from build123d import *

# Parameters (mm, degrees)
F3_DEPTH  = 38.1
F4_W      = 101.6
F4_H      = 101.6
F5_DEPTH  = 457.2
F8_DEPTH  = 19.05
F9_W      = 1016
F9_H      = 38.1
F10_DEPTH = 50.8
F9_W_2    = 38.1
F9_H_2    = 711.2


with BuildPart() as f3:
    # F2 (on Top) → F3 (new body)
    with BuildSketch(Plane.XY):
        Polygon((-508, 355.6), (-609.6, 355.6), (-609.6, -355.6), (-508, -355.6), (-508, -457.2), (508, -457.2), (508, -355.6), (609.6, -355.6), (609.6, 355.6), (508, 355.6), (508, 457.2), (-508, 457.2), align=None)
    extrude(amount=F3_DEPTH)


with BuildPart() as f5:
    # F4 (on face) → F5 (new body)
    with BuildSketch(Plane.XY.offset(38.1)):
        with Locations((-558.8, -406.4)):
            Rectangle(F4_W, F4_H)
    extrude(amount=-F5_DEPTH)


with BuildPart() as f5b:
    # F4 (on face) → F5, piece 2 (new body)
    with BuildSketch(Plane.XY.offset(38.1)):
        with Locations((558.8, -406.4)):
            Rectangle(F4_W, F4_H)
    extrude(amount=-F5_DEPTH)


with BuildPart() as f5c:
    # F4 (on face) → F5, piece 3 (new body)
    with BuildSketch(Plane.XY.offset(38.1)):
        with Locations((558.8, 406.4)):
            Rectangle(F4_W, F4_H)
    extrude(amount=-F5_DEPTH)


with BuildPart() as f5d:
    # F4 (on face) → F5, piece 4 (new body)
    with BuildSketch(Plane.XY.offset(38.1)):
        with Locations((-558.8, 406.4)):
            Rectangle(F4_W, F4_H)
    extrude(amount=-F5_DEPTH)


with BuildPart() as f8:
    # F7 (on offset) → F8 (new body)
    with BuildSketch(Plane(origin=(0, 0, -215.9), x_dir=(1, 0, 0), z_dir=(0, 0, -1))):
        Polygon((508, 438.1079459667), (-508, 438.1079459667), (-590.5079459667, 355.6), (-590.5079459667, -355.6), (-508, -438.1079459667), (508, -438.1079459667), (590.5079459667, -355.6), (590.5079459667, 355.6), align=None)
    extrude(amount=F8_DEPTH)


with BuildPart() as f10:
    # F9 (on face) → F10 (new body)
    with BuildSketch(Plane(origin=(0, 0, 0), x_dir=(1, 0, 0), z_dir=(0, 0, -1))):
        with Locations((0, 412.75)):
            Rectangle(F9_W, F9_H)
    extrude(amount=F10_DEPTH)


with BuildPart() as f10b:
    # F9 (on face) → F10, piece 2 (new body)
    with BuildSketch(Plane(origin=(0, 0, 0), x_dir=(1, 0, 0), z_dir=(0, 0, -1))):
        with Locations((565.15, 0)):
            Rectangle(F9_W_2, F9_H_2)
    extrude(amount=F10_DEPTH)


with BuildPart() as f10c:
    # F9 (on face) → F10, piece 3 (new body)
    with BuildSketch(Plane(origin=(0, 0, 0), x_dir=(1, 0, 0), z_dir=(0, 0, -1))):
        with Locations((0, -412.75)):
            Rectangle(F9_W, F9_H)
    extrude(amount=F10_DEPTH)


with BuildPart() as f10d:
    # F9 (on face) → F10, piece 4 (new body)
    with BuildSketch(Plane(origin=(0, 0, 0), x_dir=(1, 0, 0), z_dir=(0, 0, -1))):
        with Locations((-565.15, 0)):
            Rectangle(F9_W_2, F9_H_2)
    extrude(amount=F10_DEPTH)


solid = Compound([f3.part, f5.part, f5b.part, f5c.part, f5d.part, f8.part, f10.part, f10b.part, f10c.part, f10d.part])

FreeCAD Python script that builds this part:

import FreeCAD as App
import Part
import Sketcher
Q = App.Units.Quantity

doc = App.newDocument("Part")
body = doc.addObject("PartDesign::Body", "Body")

sketch1 = body.newObject("Sketcher::SketchObject", "Sketch")
sketch1.AttachmentSupport = (doc.getObject("XY_Plane"), [""])
sketch1.MapMode = "FlatFace"
sketch1.addGeometry(Part.LineSegment(App.Vector(-508, 355.6, 0), App.Vector(-609.6, 355.6, 0)), False)
sketch1.addGeometry(Part.LineSegment(App.Vector(-609.6, 355.6, 0), App.Vector(-609.6, -355.6, 0)), False)
sketch1.addGeometry(Part.LineSegment(App.Vector(-609.6, -355.6, 0), App.Vector(-508, -355.6, 0)), False)
sketch1.addGeometry(Part.LineSegment(App.Vector(-508, -355.6, 0), App.Vector(-508, -457.2, 0)), False)
sketch1.addGeometry(Part.LineSegment(App.Vector(-508, -457.2, 0), App.Vector(508, -457.2, 0)), False)
sketch1.addGeometry(Part.LineSegment(App.Vector(508, -457.2, 0), App.Vector(508, -355.6, 0)), False)
sketch1.addGeometry(Part.LineSegment(App.Vector(508, -355.6, 0), App.Vector(609.6, -355.6, 0)), False)
sketch1.addGeometry(Part.LineSegment(App.Vector(609.6, -355.6, 0), App.Vector(609.6, 355.6, 0)), False)
sketch1.addGeometry(Part.LineSegment(App.Vector(609.6, 355.6, 0), App.Vector(508, 355.6, 0)), False)
sketch1.addGeometry(Part.LineSegment(App.Vector(508, 355.6, 0), App.Vector(508, 457.2, 0)), False)
sketch1.addGeometry(Part.LineSegment(App.Vector(508, 457.2, 0), App.Vector(-508, 457.2, 0)), False)
sketch1.addGeometry(Part.LineSegment(App.Vector(-508, 457.2, 0), App.Vector(-508, 355.6, 0)), False)
sketch1.addConstraint(Sketcher.Constraint("Coincident", 0, 2, 1, 1))
sketch1.addConstraint(Sketcher.Constraint("Coincident", 1, 2, 2, 1))
sketch1.addConstraint(Sketcher.Constraint("Coincident", 2, 2, 3, 1))
sketch1.addConstraint(Sketcher.Constraint("Coincident", 3, 2, 4, 1))
sketch1.addConstraint(Sketcher.Constraint("Coincident", 4, 2, 5, 1))
sketch1.addConstraint(Sketcher.Constraint("Coincident", 5, 2, 6, 1))
sketch1.addConstraint(Sketcher.Constraint("Coincident", 6, 2, 7, 1))
sketch1.addConstraint(Sketcher.Constraint("Coincident", 7, 2, 8, 1))
sketch1.addConstraint(Sketcher.Constraint("Coincident", 8, 2, 9, 1))
sketch1.addConstraint(Sketcher.Constraint("Coincident", 9, 2, 10, 1))
sketch1.addConstraint(Sketcher.Constraint("Coincident", 10, 2, 11, 1))
sketch1.addConstraint(Sketcher.Constraint("Coincident", 11, 2, 0, 1))
sketch1.addConstraint(Sketcher.Constraint("Horizontal", 0))
sketch1.addConstraint(Sketcher.Constraint("Vertical", 1))
sketch1.addConstraint(Sketcher.Constraint("Horizontal", 2))
sketch1.addConstraint(Sketcher.Constraint("Vertical", 3))
sketch1.addConstraint(Sketcher.Constraint("Horizontal", 4))
sketch1.addConstraint(Sketcher.Constraint("Vertical", 5))
sketch1.addConstraint(Sketcher.Constraint("Horizontal", 6))
sketch1.addConstraint(Sketcher.Constraint("Vertical", 7))
sketch1.addConstraint(Sketcher.Constraint("Horizontal", 8))
sketch1.addConstraint(Sketcher.Constraint("Vertical", 9))
sketch1.addConstraint(Sketcher.Constraint("Horizontal", 10))
sketch1.addConstraint(Sketcher.Constraint("Vertical", 11))
sketch1.addConstraint(Sketcher.Constraint("Symmetric", 0, 2, 6, 2, -1, 1))
sketch1.addConstraint(Sketcher.Constraint("Symmetric", 2, 2, 8, 2, -1, 1))
sketch1.addConstraint(Sketcher.Constraint("Symmetric", 4, 2, 10, 2, -1, 1))
sketch1.addConstraint(Sketcher.Constraint("Symmetric", 2, 2, 5, 2, -2))
sketch1.addConstraint(Sketcher.Constraint("Equal", 8, 3))
sketch1.addConstraint(Sketcher.Constraint("DistanceX", 0, 2, 0, 1, Q("4 in")))
sketch1.addConstraint(Sketcher.Constraint("DistanceX", 4, 1, 4, 2, Q("40 in")))
sketch1.addConstraint(Sketcher.Constraint("DistanceY", 1, 2, 1, 1, Q("28 in")))
pad1 = body.newObject("PartDesign::Pad", "Pad")
pad1.Profile = sketch1
pad1.Length = Q("1.5 in")
body2 = doc.addObject("PartDesign::Body", "Body001")

sketch2 = body2.newObject("Sketcher::SketchObject", "Sketch001")
sketch2.AttachmentSupport = (doc.getObject("XY_Plane001"), [""])
sketch2.MapMode = "FlatFace"
sketch2.AttachmentOffset = App.Placement(App.Vector(0, 0, 1.5 * 25.4), App.Rotation())
sketch2.addGeometry(Part.LineSegment(App.Vector(-609.6, -355.6, 0), App.Vector(-609.6, -457.2, 0)), False)
sketch2.addGeometry(Part.LineSegment(App.Vector(-609.6, -457.2, 0), App.Vector(-508, -457.2, 0)), False)
sketch2.addGeometry(Part.LineSegment(App.Vector(-508, -457.2, 0), App.Vector(-508, -355.6, 0)), False)
sketch2.addGeometry(Part.LineSegment(App.Vector(-508, -355.6, 0), App.Vector(-609.6, -355.6, 0)), False)
sketch2.addConstraint(Sketcher.Constraint("Coincident", 0, 2, 1, 1))
sketch2.addConstraint(Sketcher.Constraint("Coincident", 1, 2, 2, 1))
sketch2.addConstraint(Sketcher.Constraint("Coincident", 2, 2, 3, 1))
sketch2.addConstraint(Sketcher.Constraint("Coincident", 3, 2, 0, 1))
sketch2.addConstraint(Sketcher.Constraint("Vertical", 0))
sketch2.addConstraint(Sketcher.Constraint("Horizontal", 1))
sketch2.addConstraint(Sketcher.Constraint("Vertical", 2))
sketch2.addConstraint(Sketcher.Constraint("Horizontal", 3))
sketch2.addConstraint(Sketcher.Constraint("Equal", 3, 0))
sketch2.addConstraint(Sketcher.Constraint("DistanceX", 1, 1, 1, 2, Q("4 in")))
sketch2.addConstraint(Sketcher.Constraint("DistanceX", 0, 2, -1, 1, Q("24 in")))
sketch2.addConstraint(Sketcher.Constraint("DistanceY", 0, 2, -1, 1, Q("18 in")))
pad2 = body2.newObject("PartDesign::Pad", "Pad001")
pad2.Profile = sketch2
pad2.Length = Q("18 in")
pad2.Reversed = True
body3 = doc.addObject("PartDesign::Body", "Body002")

sketch3 = body3.newObject("Sketcher::SketchObject", "Sketch002")
sketch3.AttachmentSupport = (doc.getObject("XY_Plane002"), [""])
sketch3.MapMode = "FlatFace"
sketch3.AttachmentOffset = App.Placement(App.Vector(0, 0, 1.5 * 25.4), App.Rotation())
sketch3.addGeometry(Part.LineSegment(App.Vector(508, -355.6, 0), App.Vector(508, -457.2, 0)), False)
sketch3.addGeometry(Part.LineSegment(App.Vector(508, -457.2, 0), App.Vector(609.6, -457.2, 0)), False)
sketch3.addGeometry(Part.LineSegment(App.Vector(609.6, -457.2, 0), App.Vector(609.6, -355.6, 0)), False)
sketch3.addGeometry(Part.LineSegment(App.Vector(609.6, -355.6, 0), App.Vector(508, -355.6, 0)), False)
sketch3.addConstraint(Sketcher.Constraint("Coincident", 0, 2, 1, 1))
sketch3.addConstraint(Sketcher.Constraint("Coincident", 1, 2, 2, 1))
sketch3.addConstraint(Sketcher.Constraint("Coincident", 2, 2, 3, 1))
sketch3.addConstraint(Sketcher.Constraint("Coincident", 3, 2, 0, 1))
sketch3.addConstraint(Sketcher.Constraint("Vertical", 0))
sketch3.addConstraint(Sketcher.Constraint("Horizontal", 1))
sketch3.addConstraint(Sketcher.Constraint("Vertical", 2))
sketch3.addConstraint(Sketcher.Constraint("Horizontal", 3))
sketch3.addConstraint(Sketcher.Constraint("Equal", 3, 0))
sketch3.addConstraint(Sketcher.Constraint("DistanceX", 1, 1, 1, 2, Q("4 in")))
sketch3.addConstraint(Sketcher.Constraint("DistanceX", -1, 1, 0, 2, Q("20 in")))
sketch3.addConstraint(Sketcher.Constraint("DistanceY", 0, 2, -1, 1, Q("18 in")))
pad3 = body3.newObject("PartDesign::Pad", "Pad002")
pad3.Profile = sketch3
pad3.Length = Q("18 in")
pad3.Reversed = True
body4 = doc.addObject("PartDesign::Body", "Body003")

sketch4 = body4.newObject("Sketcher::SketchObject", "Sketch003")
sketch4.AttachmentSupport = (doc.getObject("XY_Plane003"), [""])
sketch4.MapMode = "FlatFace"
sketch4.AttachmentOffset = App.Placement(App.Vector(0, 0, 1.5 * 25.4), App.Rotation())
sketch4.addGeometry(Part.LineSegment(App.Vector(508, 457.2, 0), App.Vector(508, 355.6, 0)), False)
sketch4.addGeometry(Part.LineSegment(App.Vector(508, 355.6, 0), App.Vector(609.6, 355.6, 0)), False)
sketch4.addGeometry(Part.LineSegment(App.Vector(609.6, 355.6, 0), App.Vector(609.6, 457.2, 0)), False)
sketch4.addGeometry(Part.LineSegment(App.Vector(609.6, 457.2, 0), App.Vector(508, 457.2, 0)), False)
sketch4.addConstraint(Sketcher.Constraint("Coincident", 0, 2, 1, 1))
sketch4.addConstraint(Sketcher.Constraint("Coincident", 1, 2, 2, 1))
sketch4.addConstraint(Sketcher.Constraint("Coincident", 2, 2, 3, 1))
sketch4.addConstraint(Sketcher.Constraint("Coincident", 3, 2, 0, 1))
sketch4.addConstraint(Sketcher.Constraint("Vertical", 0))
sketch4.addConstraint(Sketcher.Constraint("Horizontal", 1))
sketch4.addConstraint(Sketcher.Constraint("Vertical", 2))
sketch4.addConstraint(Sketcher.Constraint("Horizontal", 3))
sketch4.addConstraint(Sketcher.Constraint("Equal", 3, 0))
sketch4.addConstraint(Sketcher.Constraint("DistanceX", 1, 1, 1, 2, Q("4 in")))
sketch4.addConstraint(Sketcher.Constraint("DistanceX", -1, 1, 0, 2, Q("20 in")))
sketch4.addConstraint(Sketcher.Constraint("DistanceY", -1, 1, 0, 2, Q("14 in")))
pad4 = body4.newObject("PartDesign::Pad", "Pad003")
pad4.Profile = sketch4
pad4.Length = Q("18 in")
pad4.Reversed = True
body5 = doc.addObject("PartDesign::Body", "Body004")

sketch5 = body5.newObject("Sketcher::SketchObject", "Sketch004")
sketch5.AttachmentSupport = (doc.getObject("XY_Plane004"), [""])
sketch5.MapMode = "FlatFace"
sketch5.AttachmentOffset = App.Placement(App.Vector(0, 0, 1.5 * 25.4), App.Rotation())
sketch5.addGeometry(Part.LineSegment(App.Vector(-609.6, 457.2, 0), App.Vector(-609.6, 355.6, 0)), False)
sketch5.addGeometry(Part.LineSegment(App.Vector(-609.6, 355.6, 0), App.Vector(-508, 355.6, 0)), False)
sketch5.addGeometry(Part.LineSegment(App.Vector(-508, 355.6, 0), App.Vector(-508, 457.2, 0)), False)
sketch5.addGeometry(Part.LineSegment(App.Vector(-508, 457.2, 0), App.Vector(-609.6, 457.2, 0)), False)
sketch5.addConstraint(Sketcher.Constraint("Coincident", 0, 2, 1, 1))
sketch5.addConstraint(Sketcher.Constraint("Coincident", 1, 2, 2, 1))
sketch5.addConstraint(Sketcher.Constraint("Coincident", 2, 2, 3, 1))
sketch5.addConstraint(Sketcher.Constraint("Coincident", 3, 2, 0, 1))
sketch5.addConstraint(Sketcher.Constraint("Vertical", 0))
sketch5.addConstraint(Sketcher.Constraint("Horizontal", 1))
sketch5.addConstraint(Sketcher.Constraint("Vertical", 2))
sketch5.addConstraint(Sketcher.Constraint("Horizontal", 3))
sketch5.addConstraint(Sketcher.Constraint("Equal", 3, 0))
sketch5.addConstraint(Sketcher.Constraint("DistanceX", 1, 1, 1, 2, Q("4 in")))
sketch5.addConstraint(Sketcher.Constraint("DistanceX", 0, 2, -1, 1, Q("24 in")))
sketch5.addConstraint(Sketcher.Constraint("DistanceY", -1, 1, 0, 2, Q("14 in")))
pad5 = body5.newObject("PartDesign::Pad", "Pad004")
pad5.Profile = sketch5
pad5.Length = Q("18 in")
pad5.Reversed = True
body6 = doc.addObject("PartDesign::Body", "Body005")

sketch6 = body6.newObject("Sketcher::SketchObject", "Sketch005")
sketch6.AttachmentSupport = (doc.getObject("XY_Plane005"), [""])
sketch6.MapMode = "FlatFace"
sketch6.AttachmentOffset = App.Placement(App.Vector(0, 0, -8.5 * 25.4), App.Rotation())
sketch6.addGeometry(Part.LineSegment(App.Vector(508, -438.107946, 0), App.Vector(-508, -438.107946, 0)), False)
sketch6.addGeometry(Part.LineSegment(App.Vector(-508, -438.107946, 0), App.Vector(-590.507946, -355.6, 0)), False)
sketch6.addGeometry(Part.LineSegment(App.Vector(-590.507946, -355.6, 0), App.Vector(-590.507946, 355.6, 0)), False)
sketch6.addGeometry(Part.LineSegment(App.Vector(-590.507946, 355.6, 0), App.Vector(-508, 438.107946, 0)), False)
sketch6.addGeometry(Part.LineSegment(App.Vector(-508, 438.107946, 0), App.Vector(508, 438.107946, 0)), False)
sketch6.addGeometry(Part.LineSegment(App.Vector(508, 438.107946, 0), App.Vector(590.507946, 355.6, 0)), False)
sketch6.addGeometry(Part.LineSegment(App.Vector(590.507946, 355.6, 0), App.Vector(590.507946, -355.6, 0)), False)
sketch6.addGeometry(Part.LineSegment(App.Vector(590.507946, -355.6, 0), App.Vector(508, -438.107946, 0)), False)
sketch6.addConstraint(Sketcher.Constraint("Coincident", 0, 2, 1, 1))
sketch6.addConstraint(Sketcher.Constraint("Coincident", 1, 2, 2, 1))
sketch6.addConstraint(Sketcher.Constraint("Coincident", 2, 2, 3, 1))
sketch6.addConstraint(Sketcher.Constraint("Coincident", 3, 2, 4, 1))
sketch6.addConstraint(Sketcher.Constraint("Coincident", 4, 2, 5, 1))
sketch6.addConstraint(Sketcher.Constraint("Coincident", 5, 2, 6, 1))
sketch6.addConstraint(Sketcher.Constraint("Coincident", 6, 2, 7, 1))
sketch6.addConstraint(Sketcher.Constraint("Coincident", 7, 2, 0, 1))
sketch6.addConstraint(Sketcher.Constraint("Horizontal", 0))
sketch6.addConstraint(Sketcher.Constraint("Vertical", 2))
sketch6.addConstraint(Sketcher.Constraint("Horizontal", 4))
sketch6.addConstraint(Sketcher.Constraint("Vertical", 6))
sketch6.addConstraint(Sketcher.Constraint("Symmetric", 0, 2, 4, 2, -1, 1))
sketch6.addConstraint(Sketcher.Constraint("Symmetric", 1, 2, 5, 2, -1, 1))
sketch6.addConstraint(Sketcher.Constraint("Perpendicular", 1, 3))
sketch6.addConstraint(Sketcher.Constraint("Perpendicular", 5, 7))
sketch6.addConstraint(Sketcher.Constraint("Horizontal", 2, 2, 5, 2))
sketch6.addConstraint(Sketcher.Constraint("Horizontal", 1, 2, 6, 2))
sketch6.addConstraint(Sketcher.Constraint("Vertical", 0, 2, 3, 2))
sketch6.addConstraint(Sketcher.Constraint("DistanceX", 0, 2, 0, 1, Q("40 in")))
sketch6.addConstraint(Sketcher.Constraint("DistanceY", 2, 1, 2, 2, Q("28 in")))
sketch6.addConstraint(Sketcher.Constraint("DistanceY", 0, 2, 3, 2, Q("876.215892 mm")))
pad6 = body6.newObject("PartDesign::Pad", "Pad005")
pad6.Profile = sketch6
pad6.Length = Q("0.75 in")
pad6.Reversed = True
body7 = doc.addObject("PartDesign::Body", "Body006")

sketch7 = body7.newObject("Sketcher::SketchObject", "Sketch006")
sketch7.AttachmentSupport = (doc.getObject("XY_Plane006"), [""])
sketch7.MapMode = "FlatFace"
sketch7.addGeometry(Part.LineSegment(App.Vector(-508, -431.8, 0), App.Vector(-508, -393.7, 0)), False)
sketch7.addGeometry(Part.LineSegment(App.Vector(-508, -393.7, 0), App.Vector(508, -393.7, 0)), False)
sketch7.addGeometry(Part.LineSegment(App.Vector(508, -393.7, 0), App.Vector(508, -431.8, 0)), False)
sketch7.addGeometry(Part.LineSegment(App.Vector(508, -431.8, 0), App.Vector(-508, -431.8, 0)), False)
sketch7.addConstraint(Sketcher.Constraint("Coincident", 0, 2, 1, 1))
sketch7.addConstraint(Sketcher.Constraint("Coincident", 1, 2, 2, 1))
sketch7.addConstraint(Sketcher.Constraint("Coincident", 2, 2, 3, 1))
sketch7.addConstraint(Sketcher.Constraint("Coincident", 3, 2, 0, 1))
sketch7.addConstraint(Sketcher.Constraint("Vertical", 0))
sketch7.addConstraint(Sketcher.Constraint("Horizontal", 1))
sketch7.addConstraint(Sketcher.Constraint("Vertical", 2))
sketch7.addConstraint(Sketcher.Constraint("Horizontal", 3))
sketch7.addConstraint(Sketcher.Constraint("DistanceX", 1, 1, 1, 2, Q("40 in")))
sketch7.addConstraint(Sketcher.Constraint("DistanceY", 0, 1, 0, 2, Q("1.5 in")))
sketch7.addConstraint(Sketcher.Constraint("DistanceX", 0, 2, -1, 1, Q("20 in")))
sketch7.addConstraint(Sketcher.Constraint("DistanceY", 2, 2, -1, 1, Q("17 in")))
pad7 = body7.newObject("PartDesign::Pad", "Pad006")
pad7.Profile = sketch7
pad7.Length = Q("2 in")
pad7.Reversed = True
body8 = doc.addObject("PartDesign::Body", "Body007")

sketch8 = body8.newObject("Sketcher::SketchObject", "Sketch007")
sketch8.AttachmentSupport = (doc.getObject("XY_Plane007"), [""])
sketch8.MapMode = "FlatFace"
sketch8.addGeometry(Part.LineSegment(App.Vector(546.1, -355.6, 0), App.Vector(546.1, 355.6, 0)), False)
sketch8.addGeometry(Part.LineSegment(App.Vector(546.1, 355.6, 0), App.Vector(584.2, 355.6, 0)), False)
sketch8.addGeometry(Part.LineSegment(App.Vector(584.2, 355.6, 0), App.Vector(584.2, -355.6, 0)), False)
sketch8.addGeometry(Part.LineSegment(App.Vector(584.2, -355.6, 0), App.Vector(546.1, -355.6, 0)), False)
sketch8.addConstraint(Sketcher.Constraint("Coincident", 0, 2, 1, 1))
sketch8.addConstraint(Sketcher.Constraint("Coincident", 1, 2, 2, 1))
sketch8.addConstraint(Sketcher.Constraint("Coincident", 2, 2, 3, 1))
sketch8.addConstraint(Sketcher.Constraint("Coincident", 3, 2, 0, 1))
sketch8.addConstraint(Sketcher.Constraint("Vertical", 0))
sketch8.addConstraint(Sketcher.Constraint("Horizontal", 1))
sketch8.addConstraint(Sketcher.Constraint("Vertical", 2))
sketch8.addConstraint(Sketcher.Constraint("Horizontal", 3))
sketch8.addConstraint(Sketcher.Constraint("DistanceY", 0, 1, 0, 2, Q("28 in")))
sketch8.addConstraint(Sketcher.Constraint("DistanceX", 1, 1, 1, 2, Q("1.5 in")))
sketch8.addConstraint(Sketcher.Constraint("DistanceY", -1, 1, 0, 2, Q("14 in")))
sketch8.addConstraint(Sketcher.Constraint("DistanceX", -1, 1, 1, 2, Q("23 in")))
pad8 = body8.newObject("PartDesign::Pad", "Pad007")
pad8.Profile = sketch8
pad8.Length = Q("2 in")
pad8.Reversed = True
body9 = doc.addObject("PartDesign::Body", "Body008")

sketch9 = body9.newObject("Sketcher::SketchObject", "Sketch008")
sketch9.AttachmentSupport = (doc.getObject("XY_Plane008"), [""])
sketch9.MapMode = "FlatFace"
sketch9.addGeometry(Part.LineSegment(App.Vector(-508, 393.7, 0), App.Vector(-508, 431.8, 0)), False)
sketch9.addGeometry(Part.LineSegment(App.Vector(-508, 431.8, 0), App.Vector(508, 431.8, 0)), False)
sketch9.addGeometry(Part.LineSegment(App.Vector(508, 431.8, 0), App.Vector(508, 393.7, 0)), False)
sketch9.addGeometry(Part.LineSegment(App.Vector(508, 393.7, 0), App.Vector(-508, 393.7, 0)), False)
sketch9.addConstraint(Sketcher.Constraint("Coincident", 0, 2, 1, 1))
sketch9.addConstraint(Sketcher.Constraint("Coincident", 1, 2, 2, 1))
sketch9.addConstraint(Sketcher.Constraint("Coincident", 2, 2, 3, 1))
sketch9.addConstraint(Sketcher.Constraint("Coincident", 3, 2, 0, 1))
sketch9.addConstraint(Sketcher.Constraint("Vertical", 0))
sketch9.addConstraint(Sketcher.Constraint("Horizontal", 1))
sketch9.addConstraint(Sketcher.Constraint("Vertical", 2))
sketch9.addConstraint(Sketcher.Constraint("Horizontal", 3))
sketch9.addConstraint(Sketcher.Constraint("DistanceX", 1, 1, 1, 2, Q("40 in")))
sketch9.addConstraint(Sketcher.Constraint("DistanceY", 0, 1, 0, 2, Q("1.5 in")))
sketch9.addConstraint(Sketcher.Constraint("DistanceX", 0, 2, -1, 1, Q("20 in")))
sketch9.addConstraint(Sketcher.Constraint("DistanceY", -1, 1, 0, 2, Q("17 in")))
pad9 = body9.newObject("PartDesign::Pad", "Pad008")
pad9.Profile = sketch9
pad9.Length = Q("2 in")
pad9.Reversed = True
body10 = doc.addObject("PartDesign::Body", "Body009")

sketch10 = body10.newObject("Sketcher::SketchObject", "Sketch009")
sketch10.AttachmentSupport = (doc.getObject("XY_Plane009"), [""])
sketch10.MapMode = "FlatFace"
sketch10.addGeometry(Part.LineSegment(App.Vector(-584.2, -355.6, 0), App.Vector(-584.2, 355.6, 0)), False)
sketch10.addGeometry(Part.LineSegment(App.Vector(-584.2, 355.6, 0), App.Vector(-546.1, 355.6, 0)), False)
sketch10.addGeometry(Part.LineSegment(App.Vector(-546.1, 355.6, 0), App.Vector(-546.1, -355.6, 0)), False)
sketch10.addGeometry(Part.LineSegment(App.Vector(-546.1, -355.6, 0), App.Vector(-584.2, -355.6, 0)), False)
sketch10.addConstraint(Sketcher.Constraint("Coincident", 0, 2, 1, 1))
sketch10.addConstraint(Sketcher.Constraint("Coincident", 1, 2, 2, 1))
sketch10.addConstraint(Sketcher.Constraint("Coincident", 2, 2, 3, 1))
sketch10.addConstraint(Sketcher.Constraint("Coincident", 3, 2, 0, 1))
sketch10.addConstraint(Sketcher.Constraint("Vertical", 0))
sketch10.addConstraint(Sketcher.Constraint("Horizontal", 1))
sketch10.addConstraint(Sketcher.Constraint("Vertical", 2))
sketch10.addConstraint(Sketcher.Constraint("Horizontal", 3))
sketch10.addConstraint(Sketcher.Constraint("DistanceY", 0, 1, 0, 2, Q("28 in")))
sketch10.addConstraint(Sketcher.Constraint("DistanceX", 1, 1, 1, 2, Q("1.5 in")))
sketch10.addConstraint(Sketcher.Constraint("DistanceX", 0, 2, -1, 1, Q("23 in")))
sketch10.addConstraint(Sketcher.Constraint("DistanceY", -1, 1, 0, 2, Q("14 in")))
pad10 = body10.newObject("PartDesign::Pad", "Pad009")
pad10.Profile = sketch10
pad10.Length = Q("2 in")
pad10.Reversed = True

doc.recompute()
